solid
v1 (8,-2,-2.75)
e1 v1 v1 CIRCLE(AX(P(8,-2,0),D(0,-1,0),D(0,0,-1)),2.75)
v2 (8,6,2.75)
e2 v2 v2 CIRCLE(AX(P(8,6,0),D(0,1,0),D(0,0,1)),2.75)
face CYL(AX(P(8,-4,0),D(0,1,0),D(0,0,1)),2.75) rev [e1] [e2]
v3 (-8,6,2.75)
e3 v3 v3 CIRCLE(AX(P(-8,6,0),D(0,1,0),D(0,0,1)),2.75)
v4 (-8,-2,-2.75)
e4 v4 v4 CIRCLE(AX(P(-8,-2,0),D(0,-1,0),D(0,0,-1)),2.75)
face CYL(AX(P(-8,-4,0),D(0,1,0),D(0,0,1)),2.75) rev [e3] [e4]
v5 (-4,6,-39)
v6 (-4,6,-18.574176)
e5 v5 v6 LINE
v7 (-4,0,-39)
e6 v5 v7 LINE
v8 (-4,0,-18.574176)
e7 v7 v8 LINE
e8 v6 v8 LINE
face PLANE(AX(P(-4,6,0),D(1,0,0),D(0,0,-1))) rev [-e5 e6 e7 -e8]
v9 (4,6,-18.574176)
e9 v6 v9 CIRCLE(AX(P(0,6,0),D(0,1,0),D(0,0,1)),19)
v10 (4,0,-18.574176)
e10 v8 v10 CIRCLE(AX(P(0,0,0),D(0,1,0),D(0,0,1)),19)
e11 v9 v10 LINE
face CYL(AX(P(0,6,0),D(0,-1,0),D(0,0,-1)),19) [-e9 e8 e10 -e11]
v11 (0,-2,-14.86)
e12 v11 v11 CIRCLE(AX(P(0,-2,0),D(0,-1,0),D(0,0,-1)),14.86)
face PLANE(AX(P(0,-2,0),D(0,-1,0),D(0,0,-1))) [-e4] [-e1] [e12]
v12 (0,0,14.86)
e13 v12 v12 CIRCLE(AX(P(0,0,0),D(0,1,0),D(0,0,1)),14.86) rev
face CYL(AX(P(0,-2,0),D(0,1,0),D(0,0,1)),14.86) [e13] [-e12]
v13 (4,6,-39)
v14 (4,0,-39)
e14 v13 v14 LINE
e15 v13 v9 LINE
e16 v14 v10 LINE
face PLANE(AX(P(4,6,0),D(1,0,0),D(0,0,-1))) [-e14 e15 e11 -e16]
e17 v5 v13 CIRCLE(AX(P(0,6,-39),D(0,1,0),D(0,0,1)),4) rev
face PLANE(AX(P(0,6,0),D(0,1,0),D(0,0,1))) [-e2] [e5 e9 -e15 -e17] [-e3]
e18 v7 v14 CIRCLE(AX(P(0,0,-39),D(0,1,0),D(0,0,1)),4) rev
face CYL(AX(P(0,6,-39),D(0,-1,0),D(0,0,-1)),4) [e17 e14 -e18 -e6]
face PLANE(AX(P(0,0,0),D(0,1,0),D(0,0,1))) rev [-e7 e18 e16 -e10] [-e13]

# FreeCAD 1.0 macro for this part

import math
import FreeCAD as App
import Part
import Sketcher
from FreeCAD import Vector

doc = App.newDocument("Part")
body = doc.addObject("PartDesign::Body", "Body")

# Sketch on XZ plane
sketch1 = body.newObject("Sketcher::SketchObject", "Sketch")
sketch1.AttachmentSupport = (doc.getObject("XZ_Plane"), [""])
sketch1.MapMode = "FlatFace"
sketch1.addGeometry([
    Part.ArcOfCircle(Part.Circle(Vector(0, -39, 0), Vector(0, 0, 1), 4), math.radians(180), math.radians(360)),
    Part.LineSegment(Vector(-4, -39, 0), Vector(-4, -18.574176, 0)),
    Part.ArcOfCircle(Part.Circle(Vector(0, 0, 0), Vector(0, 0, 1), 19), math.radians(-77.846803), math.radians(257.846803)),
    Part.LineSegment(Vector(4, -18.574176, 0), Vector(4, -39, 0)),
], False)
sketch1.addConstraint([
    Sketcher.Constraint("Tangent", 0, 1, 1, 1),
    Sketcher.Constraint("Coincident", 1, 2, 2, 2),
    Sketcher.Constraint("Coincident", 2, 1, 3, 1),
    Sketcher.Constraint("Tangent", 3, 2, 0, 2),
    Sketcher.Constraint("Vertical", 1),
    Sketcher.Constraint("Vertical", 3),
    Sketcher.Constraint("Coincident", 2, 3, -1, 1),
    Sketcher.Constraint("PointOnObject", 0, 3, -2),
    Sketcher.Constraint("Radius", 0, 4.0),
    Sketcher.Constraint("Radius", 2, 19.0),
    Sketcher.Constraint("DistanceY", 0, 3, -1, 1, 39.0),
])
pad1 = body.newObject("PartDesign::Pad", "Pad")
pad1.Profile = sketch1
pad1.Length = 6
pad1.Reversed = True

# Sketch on XZ plane
sketch2 = body.newObject("Sketcher::SketchObject", "Sketch001")
sketch2.AttachmentSupport = (doc.getObject("XZ_Plane"), [""])
sketch2.MapMode = "FlatFace"
sketch2.addGeometry(Part.Circle(Vector(0, 0, 0), Vector(0, 0, 1), 14.86), False)
sketch2.addConstraint([
    Sketcher.Constraint("Coincident", 0, 3, -1, 1),
    Sketcher.Constraint("Diameter", 0, 29.72),
])
pad2 = body.newObject("PartDesign::Pad", "Pad001")
pad2.Profile = sketch2
pad2.Length = 2

# Sketch on XZ plane
sketch3 = body.newObject("Sketcher::SketchObject", "Sketch002")
sketch3.AttachmentSupport = (doc.getObject("XZ_Plane"), [""])
sketch3.MapMode = "FlatFace"
sketch3.AttachmentOffset = App.Placement(Vector(0, 0, -6), App.Rotation())
sketch3.addGeometry([
    Part.Circle(Vector(8, 0, 0), Vector(0, 0, 1), 2.75),
    Part.Circle(Vector(-8, 0, 0), Vector(0, 0, 1), 2.75),
], False)
sketch3.addConstraint([
    Sketcher.Constraint("Equal", 0, 1),
    Sketcher.Constraint("Symmetric", 0, 3, 1, 3, -1, 1),
    Sketcher.Constraint("PointOnObject", 0, 3, -1),
    Sketcher.Constraint("Diameter", 0, 5.5),
    Sketcher.Constraint("DistanceX", -1, 1, 0, 3, 8.0),
])
pocket1 = body.newObject("PartDesign::Pocket", "Pocket")
pocket1.Profile = sketch3
pocket1.Length = 10
pocket1.Reversed = True

doc.recompute()
